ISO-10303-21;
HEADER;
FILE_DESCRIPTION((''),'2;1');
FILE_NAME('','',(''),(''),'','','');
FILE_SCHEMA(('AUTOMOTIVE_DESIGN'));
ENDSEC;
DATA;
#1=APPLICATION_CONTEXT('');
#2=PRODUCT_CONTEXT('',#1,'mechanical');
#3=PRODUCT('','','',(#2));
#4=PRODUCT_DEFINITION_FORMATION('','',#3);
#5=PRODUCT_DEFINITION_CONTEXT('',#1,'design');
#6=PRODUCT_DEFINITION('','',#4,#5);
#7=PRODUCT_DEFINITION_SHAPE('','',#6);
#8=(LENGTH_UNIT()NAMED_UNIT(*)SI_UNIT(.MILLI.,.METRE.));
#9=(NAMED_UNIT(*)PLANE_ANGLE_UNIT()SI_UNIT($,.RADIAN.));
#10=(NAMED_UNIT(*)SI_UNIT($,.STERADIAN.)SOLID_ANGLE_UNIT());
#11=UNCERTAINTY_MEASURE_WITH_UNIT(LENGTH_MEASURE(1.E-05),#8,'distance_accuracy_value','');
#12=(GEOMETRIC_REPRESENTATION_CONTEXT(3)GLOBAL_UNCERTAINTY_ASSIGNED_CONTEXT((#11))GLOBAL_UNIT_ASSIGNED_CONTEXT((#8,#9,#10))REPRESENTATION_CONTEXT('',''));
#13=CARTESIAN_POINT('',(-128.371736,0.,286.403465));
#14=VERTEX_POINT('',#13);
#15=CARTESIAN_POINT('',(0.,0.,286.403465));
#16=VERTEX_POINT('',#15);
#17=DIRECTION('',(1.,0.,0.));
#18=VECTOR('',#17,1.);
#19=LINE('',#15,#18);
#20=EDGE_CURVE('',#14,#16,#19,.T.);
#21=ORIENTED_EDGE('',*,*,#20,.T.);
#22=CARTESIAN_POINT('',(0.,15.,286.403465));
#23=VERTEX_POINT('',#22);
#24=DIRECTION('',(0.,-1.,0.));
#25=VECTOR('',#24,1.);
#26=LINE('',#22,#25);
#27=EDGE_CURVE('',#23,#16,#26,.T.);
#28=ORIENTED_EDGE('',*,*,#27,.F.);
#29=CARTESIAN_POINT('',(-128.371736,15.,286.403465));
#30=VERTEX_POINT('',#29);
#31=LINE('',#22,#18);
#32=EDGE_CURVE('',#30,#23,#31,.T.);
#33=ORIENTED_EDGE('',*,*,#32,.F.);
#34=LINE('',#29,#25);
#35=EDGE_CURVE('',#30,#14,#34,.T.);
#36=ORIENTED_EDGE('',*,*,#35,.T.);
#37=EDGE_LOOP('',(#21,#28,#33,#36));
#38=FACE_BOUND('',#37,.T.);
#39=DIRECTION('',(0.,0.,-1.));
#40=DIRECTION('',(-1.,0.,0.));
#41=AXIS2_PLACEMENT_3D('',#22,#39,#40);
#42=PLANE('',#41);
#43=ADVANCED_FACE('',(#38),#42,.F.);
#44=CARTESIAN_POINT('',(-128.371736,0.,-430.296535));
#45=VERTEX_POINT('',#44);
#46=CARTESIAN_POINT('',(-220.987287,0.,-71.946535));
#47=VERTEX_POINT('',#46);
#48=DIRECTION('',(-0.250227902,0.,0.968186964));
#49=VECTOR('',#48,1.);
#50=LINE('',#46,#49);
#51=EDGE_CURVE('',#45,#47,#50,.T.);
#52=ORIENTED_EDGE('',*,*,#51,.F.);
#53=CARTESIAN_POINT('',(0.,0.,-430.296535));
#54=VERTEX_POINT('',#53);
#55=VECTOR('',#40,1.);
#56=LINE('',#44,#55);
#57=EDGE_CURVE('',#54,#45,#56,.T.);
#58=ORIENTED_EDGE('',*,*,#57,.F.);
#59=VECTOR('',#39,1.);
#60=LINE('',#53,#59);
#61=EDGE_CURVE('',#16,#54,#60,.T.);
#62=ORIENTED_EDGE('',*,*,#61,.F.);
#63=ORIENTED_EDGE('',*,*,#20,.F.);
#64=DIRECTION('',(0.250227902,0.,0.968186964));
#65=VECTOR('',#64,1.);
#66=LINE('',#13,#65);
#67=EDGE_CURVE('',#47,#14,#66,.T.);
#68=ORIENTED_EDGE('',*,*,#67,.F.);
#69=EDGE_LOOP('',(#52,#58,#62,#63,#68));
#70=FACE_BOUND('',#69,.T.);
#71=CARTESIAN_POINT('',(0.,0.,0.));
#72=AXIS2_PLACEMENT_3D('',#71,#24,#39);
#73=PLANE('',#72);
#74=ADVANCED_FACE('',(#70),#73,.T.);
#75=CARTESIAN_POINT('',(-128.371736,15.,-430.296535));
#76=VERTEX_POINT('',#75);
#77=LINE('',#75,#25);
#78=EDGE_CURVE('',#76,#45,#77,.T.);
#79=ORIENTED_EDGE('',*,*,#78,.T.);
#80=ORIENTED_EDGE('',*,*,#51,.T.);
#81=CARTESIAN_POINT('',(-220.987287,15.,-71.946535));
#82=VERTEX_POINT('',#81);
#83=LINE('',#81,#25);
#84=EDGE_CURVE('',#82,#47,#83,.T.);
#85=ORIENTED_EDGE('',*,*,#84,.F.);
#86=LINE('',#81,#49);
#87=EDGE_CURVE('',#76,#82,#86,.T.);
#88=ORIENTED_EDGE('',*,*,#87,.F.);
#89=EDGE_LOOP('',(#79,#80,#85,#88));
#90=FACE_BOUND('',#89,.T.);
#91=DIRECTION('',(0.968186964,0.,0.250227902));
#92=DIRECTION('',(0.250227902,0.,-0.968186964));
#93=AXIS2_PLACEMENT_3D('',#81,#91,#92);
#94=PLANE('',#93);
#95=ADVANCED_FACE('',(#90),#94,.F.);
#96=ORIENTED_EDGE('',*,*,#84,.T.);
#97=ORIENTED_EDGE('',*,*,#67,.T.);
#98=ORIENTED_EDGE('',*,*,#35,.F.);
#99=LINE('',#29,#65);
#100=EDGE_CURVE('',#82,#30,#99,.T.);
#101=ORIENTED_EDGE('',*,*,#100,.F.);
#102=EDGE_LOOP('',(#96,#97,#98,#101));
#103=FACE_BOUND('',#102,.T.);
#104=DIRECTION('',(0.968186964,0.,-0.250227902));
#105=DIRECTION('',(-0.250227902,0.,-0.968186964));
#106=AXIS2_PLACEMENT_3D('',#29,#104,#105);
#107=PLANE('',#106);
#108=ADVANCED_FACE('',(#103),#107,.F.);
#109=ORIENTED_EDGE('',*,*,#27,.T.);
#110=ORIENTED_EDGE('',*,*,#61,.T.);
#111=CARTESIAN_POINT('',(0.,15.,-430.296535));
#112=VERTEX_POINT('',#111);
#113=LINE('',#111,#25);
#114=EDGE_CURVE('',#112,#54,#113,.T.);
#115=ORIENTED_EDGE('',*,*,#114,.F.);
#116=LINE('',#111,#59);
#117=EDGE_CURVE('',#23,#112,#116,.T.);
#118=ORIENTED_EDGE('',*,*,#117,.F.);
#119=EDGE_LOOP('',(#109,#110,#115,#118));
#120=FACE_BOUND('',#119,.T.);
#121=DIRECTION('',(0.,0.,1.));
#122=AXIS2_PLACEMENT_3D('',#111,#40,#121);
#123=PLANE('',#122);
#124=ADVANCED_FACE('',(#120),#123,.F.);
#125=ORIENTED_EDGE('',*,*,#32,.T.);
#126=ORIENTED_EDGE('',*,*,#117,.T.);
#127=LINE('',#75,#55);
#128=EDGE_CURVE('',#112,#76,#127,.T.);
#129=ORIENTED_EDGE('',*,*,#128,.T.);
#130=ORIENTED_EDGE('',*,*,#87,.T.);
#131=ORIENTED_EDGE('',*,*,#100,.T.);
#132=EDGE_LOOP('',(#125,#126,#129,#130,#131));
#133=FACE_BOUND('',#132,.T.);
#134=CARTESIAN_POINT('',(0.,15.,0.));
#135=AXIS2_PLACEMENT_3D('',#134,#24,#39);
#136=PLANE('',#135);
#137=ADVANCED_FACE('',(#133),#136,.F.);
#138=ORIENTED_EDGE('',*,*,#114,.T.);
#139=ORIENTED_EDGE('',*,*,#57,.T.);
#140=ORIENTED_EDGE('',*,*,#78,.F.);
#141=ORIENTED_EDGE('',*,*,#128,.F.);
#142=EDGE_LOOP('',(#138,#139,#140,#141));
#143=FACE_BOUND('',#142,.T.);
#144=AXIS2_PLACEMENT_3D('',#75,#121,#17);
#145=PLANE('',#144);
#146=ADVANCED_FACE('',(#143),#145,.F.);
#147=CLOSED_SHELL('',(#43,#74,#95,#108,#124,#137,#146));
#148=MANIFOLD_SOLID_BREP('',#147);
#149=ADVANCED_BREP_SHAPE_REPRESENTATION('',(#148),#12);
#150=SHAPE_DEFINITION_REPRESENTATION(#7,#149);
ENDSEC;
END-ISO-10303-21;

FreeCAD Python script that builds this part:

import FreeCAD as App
import Part
import Sketcher
from FreeCAD import Vector
Q = App.Units.Quantity


def add_polygon(sketch, points):
    """Adds a closed chain of lines whose ends are joined by coincident constraints."""
    first, n = sketch.GeometryCount, len(points)
    for a, b in zip(points, points[1:] + points[:1]):
        sketch.addGeometry(Part.LineSegment(App.Vector(*a, 0), App.Vector(*b, 0)), False)
    for i in range(n):
        sketch.addConstraint(Sketcher.Constraint("Coincident", first + i, 2, first + (i + 1) % n, 1))

doc = App.newDocument("Part")
body = doc.addObject("PartDesign::Body", "Body")

sketch1 = doc.addObject("Sketcher::SketchObject", "Sketch")
body.addObject(sketch1)
sketch1.AttachmentSupport = (doc.XZ_Plane, [""])
sketch1.MapMode = "FlatFace"
add_polygon(sketch1, [(0, 286), (0, -430), (-128, -430), (-221, -72), (-128, 286)])
sketch1.addConstraint(Sketcher.Constraint("Vertical", 0))
sketch1.addConstraint(Sketcher.Constraint("Horizontal", 1))
sketch1.addConstraint(Sketcher.Constraint("Horizontal", 4))
sketch1.addConstraint(Sketcher.Constraint("PointOnObject", 0, 2, -2))
sketch1.addConstraint(Sketcher.Constraint("Vertical", 1, 2, 3, 2))
sketch1.addConstraint(Sketcher.Constraint("Equal", 2, 3))
sketch1.addConstraint(Sketcher.Constraint("DistanceY", 0, 2, 0, 1, Q("716.7 mm")))
sketch1.addConstraint(Sketcher.Constraint("DistanceX", 1, 2, 1, 1, Q("128.371736 mm")))
sketch1.addConstraint(Sketcher.Constraint("DistanceX", 2, 2, 1, 2, Q("92.615551 mm")))
sketch1.addConstraint(Sketcher.Constraint("DistanceY", 0, 2, -1, 1, Q("430.296535 mm")))
pad1 = doc.addObject("PartDesign::Pad", "Pad")
body.addObject(pad1)
pad1.Profile = sketch1
pad1.Length = 15
pad1.Reversed = True

doc.recompute()
